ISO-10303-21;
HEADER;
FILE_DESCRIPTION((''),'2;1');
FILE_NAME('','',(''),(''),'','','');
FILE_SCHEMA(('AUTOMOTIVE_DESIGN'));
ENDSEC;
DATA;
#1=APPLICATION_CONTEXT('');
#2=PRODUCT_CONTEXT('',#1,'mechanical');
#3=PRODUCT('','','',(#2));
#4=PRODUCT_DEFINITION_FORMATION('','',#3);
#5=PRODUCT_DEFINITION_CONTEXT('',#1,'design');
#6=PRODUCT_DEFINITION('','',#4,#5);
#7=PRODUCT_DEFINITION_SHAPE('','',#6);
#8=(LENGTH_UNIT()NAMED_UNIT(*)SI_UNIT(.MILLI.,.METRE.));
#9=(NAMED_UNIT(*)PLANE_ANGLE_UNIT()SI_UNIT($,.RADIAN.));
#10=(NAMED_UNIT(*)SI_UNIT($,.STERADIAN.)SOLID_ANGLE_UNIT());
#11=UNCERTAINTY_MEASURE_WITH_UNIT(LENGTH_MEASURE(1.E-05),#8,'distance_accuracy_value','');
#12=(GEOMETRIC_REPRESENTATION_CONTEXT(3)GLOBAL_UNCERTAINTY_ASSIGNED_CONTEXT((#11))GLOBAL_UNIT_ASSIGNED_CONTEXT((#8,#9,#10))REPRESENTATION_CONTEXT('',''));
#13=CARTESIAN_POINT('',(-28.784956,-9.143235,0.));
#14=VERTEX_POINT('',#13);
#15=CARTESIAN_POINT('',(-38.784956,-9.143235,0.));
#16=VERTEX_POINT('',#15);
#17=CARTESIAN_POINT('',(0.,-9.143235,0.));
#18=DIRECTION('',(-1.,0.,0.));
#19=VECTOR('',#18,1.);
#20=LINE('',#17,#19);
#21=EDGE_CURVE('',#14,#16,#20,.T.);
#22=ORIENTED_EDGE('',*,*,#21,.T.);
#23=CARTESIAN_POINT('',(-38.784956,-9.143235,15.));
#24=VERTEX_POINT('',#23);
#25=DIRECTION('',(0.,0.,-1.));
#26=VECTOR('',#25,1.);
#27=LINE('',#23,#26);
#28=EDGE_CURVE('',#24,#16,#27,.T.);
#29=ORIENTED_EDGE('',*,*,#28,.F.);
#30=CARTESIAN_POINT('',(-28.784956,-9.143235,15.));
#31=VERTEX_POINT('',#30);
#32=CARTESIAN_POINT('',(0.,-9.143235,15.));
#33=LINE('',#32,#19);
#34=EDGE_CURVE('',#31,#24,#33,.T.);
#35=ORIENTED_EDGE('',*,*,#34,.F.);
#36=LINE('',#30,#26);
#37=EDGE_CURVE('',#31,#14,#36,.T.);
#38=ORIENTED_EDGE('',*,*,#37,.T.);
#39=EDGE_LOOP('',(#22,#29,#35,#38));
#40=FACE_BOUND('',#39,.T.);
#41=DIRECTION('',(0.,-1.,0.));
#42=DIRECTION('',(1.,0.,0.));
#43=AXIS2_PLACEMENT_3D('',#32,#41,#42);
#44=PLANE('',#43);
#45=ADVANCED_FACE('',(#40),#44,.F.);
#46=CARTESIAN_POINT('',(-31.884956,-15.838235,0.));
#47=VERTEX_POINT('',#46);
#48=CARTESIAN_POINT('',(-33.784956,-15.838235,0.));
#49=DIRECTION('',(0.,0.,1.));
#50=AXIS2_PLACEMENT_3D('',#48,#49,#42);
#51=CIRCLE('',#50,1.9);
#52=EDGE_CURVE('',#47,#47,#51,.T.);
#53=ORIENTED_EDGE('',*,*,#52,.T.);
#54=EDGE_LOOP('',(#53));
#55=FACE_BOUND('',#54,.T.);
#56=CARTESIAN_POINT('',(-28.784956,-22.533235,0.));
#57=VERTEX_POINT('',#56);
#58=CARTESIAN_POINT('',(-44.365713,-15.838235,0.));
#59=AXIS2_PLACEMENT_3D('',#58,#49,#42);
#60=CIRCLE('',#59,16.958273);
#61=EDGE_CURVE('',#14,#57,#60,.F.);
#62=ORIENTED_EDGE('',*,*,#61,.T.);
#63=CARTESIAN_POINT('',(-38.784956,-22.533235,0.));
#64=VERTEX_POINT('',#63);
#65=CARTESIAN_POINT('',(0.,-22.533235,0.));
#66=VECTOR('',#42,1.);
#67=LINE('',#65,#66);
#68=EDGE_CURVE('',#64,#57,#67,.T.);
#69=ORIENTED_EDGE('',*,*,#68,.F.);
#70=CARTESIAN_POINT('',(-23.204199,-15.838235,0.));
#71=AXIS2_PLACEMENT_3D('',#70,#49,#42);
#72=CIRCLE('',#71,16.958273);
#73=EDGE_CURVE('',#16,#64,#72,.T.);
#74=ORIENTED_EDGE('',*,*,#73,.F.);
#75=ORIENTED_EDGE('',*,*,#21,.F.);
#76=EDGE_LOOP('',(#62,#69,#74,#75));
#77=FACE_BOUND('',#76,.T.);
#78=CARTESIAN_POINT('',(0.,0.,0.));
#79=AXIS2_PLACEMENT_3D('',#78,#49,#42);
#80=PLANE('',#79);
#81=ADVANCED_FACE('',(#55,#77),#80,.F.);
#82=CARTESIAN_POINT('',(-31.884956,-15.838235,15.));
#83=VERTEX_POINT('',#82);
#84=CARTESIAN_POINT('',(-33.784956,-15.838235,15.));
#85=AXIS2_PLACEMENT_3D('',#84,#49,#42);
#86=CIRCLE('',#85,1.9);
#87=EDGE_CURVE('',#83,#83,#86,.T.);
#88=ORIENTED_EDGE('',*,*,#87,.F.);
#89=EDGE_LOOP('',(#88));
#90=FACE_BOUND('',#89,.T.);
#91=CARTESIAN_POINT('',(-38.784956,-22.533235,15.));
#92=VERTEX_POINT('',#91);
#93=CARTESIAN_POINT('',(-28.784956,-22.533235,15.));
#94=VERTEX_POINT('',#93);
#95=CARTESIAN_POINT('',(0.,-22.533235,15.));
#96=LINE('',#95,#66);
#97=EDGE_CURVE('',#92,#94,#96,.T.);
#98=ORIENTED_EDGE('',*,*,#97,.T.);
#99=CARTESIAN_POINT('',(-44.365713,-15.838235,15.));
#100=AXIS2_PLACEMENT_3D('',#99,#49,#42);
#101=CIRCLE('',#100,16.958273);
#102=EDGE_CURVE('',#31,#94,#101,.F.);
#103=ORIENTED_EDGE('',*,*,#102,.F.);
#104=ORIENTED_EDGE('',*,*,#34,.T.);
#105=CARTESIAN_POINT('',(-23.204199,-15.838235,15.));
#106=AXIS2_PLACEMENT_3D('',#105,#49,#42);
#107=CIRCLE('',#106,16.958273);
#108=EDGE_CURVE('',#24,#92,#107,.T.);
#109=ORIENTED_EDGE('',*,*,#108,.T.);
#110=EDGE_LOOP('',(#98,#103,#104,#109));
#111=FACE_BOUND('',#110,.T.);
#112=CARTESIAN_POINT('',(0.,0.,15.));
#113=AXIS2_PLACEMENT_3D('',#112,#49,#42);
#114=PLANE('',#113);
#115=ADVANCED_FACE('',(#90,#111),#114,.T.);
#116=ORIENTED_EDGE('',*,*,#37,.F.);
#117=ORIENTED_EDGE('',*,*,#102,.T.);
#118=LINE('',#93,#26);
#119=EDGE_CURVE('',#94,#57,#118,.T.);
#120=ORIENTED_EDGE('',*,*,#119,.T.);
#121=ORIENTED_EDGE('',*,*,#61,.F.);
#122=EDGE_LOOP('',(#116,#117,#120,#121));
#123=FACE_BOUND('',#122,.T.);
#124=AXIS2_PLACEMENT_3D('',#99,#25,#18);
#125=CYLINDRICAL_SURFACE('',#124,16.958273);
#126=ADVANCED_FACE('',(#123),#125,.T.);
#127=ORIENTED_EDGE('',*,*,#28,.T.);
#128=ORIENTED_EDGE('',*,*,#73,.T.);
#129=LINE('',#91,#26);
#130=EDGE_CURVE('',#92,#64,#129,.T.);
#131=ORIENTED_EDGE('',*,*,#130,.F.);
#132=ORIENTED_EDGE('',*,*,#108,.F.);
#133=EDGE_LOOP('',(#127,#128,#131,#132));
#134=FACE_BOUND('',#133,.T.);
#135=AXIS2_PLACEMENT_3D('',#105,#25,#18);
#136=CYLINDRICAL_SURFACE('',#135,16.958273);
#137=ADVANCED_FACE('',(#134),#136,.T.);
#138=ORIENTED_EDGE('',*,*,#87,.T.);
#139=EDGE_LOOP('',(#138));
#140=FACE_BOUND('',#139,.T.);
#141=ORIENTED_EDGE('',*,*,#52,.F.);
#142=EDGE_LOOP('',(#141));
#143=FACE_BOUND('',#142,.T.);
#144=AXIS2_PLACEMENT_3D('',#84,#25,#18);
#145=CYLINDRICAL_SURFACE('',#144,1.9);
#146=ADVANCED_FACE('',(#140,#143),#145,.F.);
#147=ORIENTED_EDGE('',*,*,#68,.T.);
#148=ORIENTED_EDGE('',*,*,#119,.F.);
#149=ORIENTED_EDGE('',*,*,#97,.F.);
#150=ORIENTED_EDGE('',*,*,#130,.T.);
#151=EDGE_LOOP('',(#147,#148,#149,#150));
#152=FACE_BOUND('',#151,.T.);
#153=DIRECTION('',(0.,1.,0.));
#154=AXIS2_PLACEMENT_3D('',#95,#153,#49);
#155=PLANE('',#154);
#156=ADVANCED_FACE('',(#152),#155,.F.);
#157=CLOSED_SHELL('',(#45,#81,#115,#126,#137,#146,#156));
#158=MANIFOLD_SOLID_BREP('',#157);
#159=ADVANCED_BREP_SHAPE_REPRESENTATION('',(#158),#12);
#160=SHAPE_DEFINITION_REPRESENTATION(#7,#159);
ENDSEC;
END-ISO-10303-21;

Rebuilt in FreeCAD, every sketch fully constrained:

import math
import FreeCAD as App
import Part
import Sketcher

doc = App.newDocument("Part")
body = doc.addObject("PartDesign::Body", "Body")

sketch1 = body.newObject("Sketcher::SketchObject", "Sketch")
sketch1.AttachmentSupport = (doc.getObject("XY_Plane"), [""])
sketch1.MapMode = "FlatFace"
sketch1.addGeometry([
    Part.ArcOfCircle(Part.Circle(App.Vector(-44.4, -15.8, 0), App.Vector(0, 0, 1), 17), math.radians(-23), math.radians(23)),
    Part.LineSegment(App.Vector(-28.8, -9.1, 0), App.Vector(-38.8, -9.1, 0)),
    Part.ArcOfCircle(Part.Circle(App.Vector(-23.2, -15.8, 0), App.Vector(0, 0, 1), 17), math.radians(157), math.radians(203)),
    Part.LineSegment(App.Vector(-38.8, -22.5, 0), App.Vector(-28.8, -22.5, 0)),
    Part.Circle(App.Vector(-33.8, -15.8, 0), App.Vector(0, 0, 1), 1.9),
], False)
sketch1.addConstraint([
    Sketcher.Constraint("Coincident", 0, 2, 1, 1),
    Sketcher.Constraint("Coincident", 1, 2, 2, 1),
    Sketcher.Constraint("Coincident", 2, 2, 3, 1),
    Sketcher.Constraint("Coincident", 3, 2, 0, 1),
    Sketcher.Constraint("Horizontal", 1),
    Sketcher.Constraint("Horizontal", 3),
    Sketcher.Constraint("Equal", 0, 2),
    Sketcher.Constraint("Horizontal", 0, 3, 2, 3),
    Sketcher.Constraint("Horizontal", 2, 3, 4, 3),
    Sketcher.Constraint("Vertical", 1, 2, 2, 2),
    Sketcher.Constraint("Diameter", 4, 3.8),
    Sketcher.Constraint("DistanceX", 1, 2, 1, 1, 10.0),
    Sketcher.Constraint("DistanceX", 4, 3, 0, 2, 5.0),
    Sketcher.Constraint("DistanceY", 2, 2, 1, 2, 13.39),
    Sketcher.Constraint("Radius", 0, 16.958273),
    Sketcher.Constraint("DistanceX", 2, 3, -1, 1, 23.204199),
    Sketcher.Constraint("DistanceY", 0, 3, -1, 1, 15.838235),
])
pad1 = body.newObject("PartDesign::Pad", "Pad")
pad1.Profile = sketch1
pad1.Length = 15

doc.recompute()
